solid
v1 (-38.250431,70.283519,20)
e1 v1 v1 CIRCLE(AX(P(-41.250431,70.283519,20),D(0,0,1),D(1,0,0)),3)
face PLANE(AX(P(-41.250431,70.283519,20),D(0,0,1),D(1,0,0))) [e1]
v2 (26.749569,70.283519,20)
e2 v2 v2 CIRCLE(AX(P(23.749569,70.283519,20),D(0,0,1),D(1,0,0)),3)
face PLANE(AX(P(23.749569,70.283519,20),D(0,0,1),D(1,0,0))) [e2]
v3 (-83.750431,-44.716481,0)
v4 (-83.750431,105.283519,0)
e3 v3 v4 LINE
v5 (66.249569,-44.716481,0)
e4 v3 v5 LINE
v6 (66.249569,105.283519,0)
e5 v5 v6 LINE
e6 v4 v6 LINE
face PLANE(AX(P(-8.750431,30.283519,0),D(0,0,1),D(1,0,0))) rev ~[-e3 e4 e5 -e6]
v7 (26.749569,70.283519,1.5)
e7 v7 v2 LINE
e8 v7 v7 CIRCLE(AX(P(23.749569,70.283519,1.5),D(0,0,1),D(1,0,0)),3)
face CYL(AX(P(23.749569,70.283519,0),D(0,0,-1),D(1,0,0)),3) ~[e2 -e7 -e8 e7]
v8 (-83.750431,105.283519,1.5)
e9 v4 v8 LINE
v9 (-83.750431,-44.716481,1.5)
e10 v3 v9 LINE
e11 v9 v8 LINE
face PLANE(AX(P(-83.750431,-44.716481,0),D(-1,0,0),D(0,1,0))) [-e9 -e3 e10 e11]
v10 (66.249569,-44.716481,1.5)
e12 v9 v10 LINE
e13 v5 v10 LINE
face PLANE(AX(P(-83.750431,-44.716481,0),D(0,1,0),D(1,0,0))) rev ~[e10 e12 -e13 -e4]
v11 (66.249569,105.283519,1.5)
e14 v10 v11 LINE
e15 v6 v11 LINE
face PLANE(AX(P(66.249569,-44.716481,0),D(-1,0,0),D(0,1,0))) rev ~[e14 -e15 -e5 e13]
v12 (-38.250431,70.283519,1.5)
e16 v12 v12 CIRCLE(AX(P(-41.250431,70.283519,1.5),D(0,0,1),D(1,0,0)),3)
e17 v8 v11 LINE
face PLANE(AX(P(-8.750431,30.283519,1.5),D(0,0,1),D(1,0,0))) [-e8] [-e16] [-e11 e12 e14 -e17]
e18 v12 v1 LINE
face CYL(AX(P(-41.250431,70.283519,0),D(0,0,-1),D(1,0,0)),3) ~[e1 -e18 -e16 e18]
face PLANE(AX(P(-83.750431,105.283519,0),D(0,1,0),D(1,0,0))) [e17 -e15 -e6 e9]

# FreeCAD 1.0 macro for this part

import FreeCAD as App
import Part
import Sketcher
Q = App.Units.Quantity


def add_polygon(sketch, points):
    """Adds a closed chain of lines whose ends are joined by coincident constraints."""
    first, n = sketch.GeometryCount, len(points)
    for a, b in zip(points, points[1:] + points[:1]):
        sketch.addGeometry(Part.LineSegment(App.Vector(*a, 0), App.Vector(*b, 0)), False)
    for i in range(n):
        sketch.addConstraint(Sketcher.Constraint("Coincident", first + i, 2, first + (i + 1) % n, 1))

doc = App.newDocument("Part")
body = doc.addObject("PartDesign::Body", "Body")

sketch1 = body.newObject("Sketcher::SketchObject", "Sketch")
sketch1.AttachmentSupport = (doc.getObject("XY_Plane"), [""])
sketch1.MapMode = "FlatFace"
add_polygon(sketch1, [(-83.8, 105.3), (-83.8, -44.7), (66.2, -44.7), (66.2, 105.3)])
sketch1.addGeometry(Part.Circle(App.Vector(-41.3, 70.3, 0), App.Vector(0, 0, 1), 3), False)
sketch1.addGeometry(Part.Circle(App.Vector(23.7, 70.3, 0), App.Vector(0, 0, 1), 3), False)
sketch1.addConstraint(Sketcher.Constraint("Vertical", 0))
sketch1.addConstraint(Sketcher.Constraint("Horizontal", 1))
sketch1.addConstraint(Sketcher.Constraint("Vertical", 2))
sketch1.addConstraint(Sketcher.Constraint("Horizontal", 3))
sketch1.addConstraint(Sketcher.Constraint("Equal", 4, 5))
sketch1.addConstraint(Sketcher.Constraint("Horizontal", 4, 3, 5, 3))
sketch1.addConstraint(Sketcher.Constraint("Equal", 3, 0))
sketch1.addConstraint(Sketcher.Constraint("Diameter", 4, Q("6 mm")))
sketch1.addConstraint(Sketcher.Constraint("DistanceX", 1, 1, 1, 2, Q("150 mm")))
sketch1.addConstraint(Sketcher.Constraint("DistanceX", 4, 3, 5, 3, Q("65 mm")))
sketch1.addConstraint(Sketcher.Constraint("DistanceY", 0, 2, 4, 3, Q("115 mm")))
sketch1.addConstraint(Sketcher.Constraint("DistanceX", 0, 2, 4, 3, Q("42.5 mm")))
sketch1.addConstraint(Sketcher.Constraint("DistanceX", 4, 3, -1, 1, Q("41.250431 mm")))
sketch1.addConstraint(Sketcher.Constraint("DistanceY", -1, 1, 4, 3, Q("70.283519 mm")))
pad1 = body.newObject("PartDesign::Pad", "Pad")
pad1.Profile = sketch1
pad1.Length = 1.5

sketch2 = body.newObject("Sketcher::SketchObject", "Sketch001")
sketch2.AttachmentSupport = (doc.getObject("XY_Plane"), [""])
sketch2.MapMode = "FlatFace"
sketch2.addGeometry(Part.Circle(App.Vector(-41.3, 70.3, 0), App.Vector(0, 0, 1), 3), False)
sketch2.addGeometry(Part.Circle(App.Vector(23.7, 70.3, 0), App.Vector(0, 0, 1), 3), False)
sketch2.addConstraint(Sketcher.Constraint("Equal", 0, 1))
sketch2.addConstraint(Sketcher.Constraint("Horizontal", 0, 3, 1, 3))
sketch2.addConstraint(Sketcher.Constraint("Diameter", 0, Q("6 mm")))
sketch2.addConstraint(Sketcher.Constraint("DistanceX", 0, 3, 1, 3, Q("65 mm")))
sketch2.addConstraint(Sketcher.Constraint("DistanceX", 0, 3, -1, 1, Q("41.250431 mm")))
sketch2.addConstraint(Sketcher.Constraint("DistanceY", -1, 1, 0, 3, Q("70.283519 mm")))
pad2 = body.newObject("PartDesign::Pad", "Pad001")
pad2.Profile = sketch2
pad2.Length = 20

doc.recompute()
